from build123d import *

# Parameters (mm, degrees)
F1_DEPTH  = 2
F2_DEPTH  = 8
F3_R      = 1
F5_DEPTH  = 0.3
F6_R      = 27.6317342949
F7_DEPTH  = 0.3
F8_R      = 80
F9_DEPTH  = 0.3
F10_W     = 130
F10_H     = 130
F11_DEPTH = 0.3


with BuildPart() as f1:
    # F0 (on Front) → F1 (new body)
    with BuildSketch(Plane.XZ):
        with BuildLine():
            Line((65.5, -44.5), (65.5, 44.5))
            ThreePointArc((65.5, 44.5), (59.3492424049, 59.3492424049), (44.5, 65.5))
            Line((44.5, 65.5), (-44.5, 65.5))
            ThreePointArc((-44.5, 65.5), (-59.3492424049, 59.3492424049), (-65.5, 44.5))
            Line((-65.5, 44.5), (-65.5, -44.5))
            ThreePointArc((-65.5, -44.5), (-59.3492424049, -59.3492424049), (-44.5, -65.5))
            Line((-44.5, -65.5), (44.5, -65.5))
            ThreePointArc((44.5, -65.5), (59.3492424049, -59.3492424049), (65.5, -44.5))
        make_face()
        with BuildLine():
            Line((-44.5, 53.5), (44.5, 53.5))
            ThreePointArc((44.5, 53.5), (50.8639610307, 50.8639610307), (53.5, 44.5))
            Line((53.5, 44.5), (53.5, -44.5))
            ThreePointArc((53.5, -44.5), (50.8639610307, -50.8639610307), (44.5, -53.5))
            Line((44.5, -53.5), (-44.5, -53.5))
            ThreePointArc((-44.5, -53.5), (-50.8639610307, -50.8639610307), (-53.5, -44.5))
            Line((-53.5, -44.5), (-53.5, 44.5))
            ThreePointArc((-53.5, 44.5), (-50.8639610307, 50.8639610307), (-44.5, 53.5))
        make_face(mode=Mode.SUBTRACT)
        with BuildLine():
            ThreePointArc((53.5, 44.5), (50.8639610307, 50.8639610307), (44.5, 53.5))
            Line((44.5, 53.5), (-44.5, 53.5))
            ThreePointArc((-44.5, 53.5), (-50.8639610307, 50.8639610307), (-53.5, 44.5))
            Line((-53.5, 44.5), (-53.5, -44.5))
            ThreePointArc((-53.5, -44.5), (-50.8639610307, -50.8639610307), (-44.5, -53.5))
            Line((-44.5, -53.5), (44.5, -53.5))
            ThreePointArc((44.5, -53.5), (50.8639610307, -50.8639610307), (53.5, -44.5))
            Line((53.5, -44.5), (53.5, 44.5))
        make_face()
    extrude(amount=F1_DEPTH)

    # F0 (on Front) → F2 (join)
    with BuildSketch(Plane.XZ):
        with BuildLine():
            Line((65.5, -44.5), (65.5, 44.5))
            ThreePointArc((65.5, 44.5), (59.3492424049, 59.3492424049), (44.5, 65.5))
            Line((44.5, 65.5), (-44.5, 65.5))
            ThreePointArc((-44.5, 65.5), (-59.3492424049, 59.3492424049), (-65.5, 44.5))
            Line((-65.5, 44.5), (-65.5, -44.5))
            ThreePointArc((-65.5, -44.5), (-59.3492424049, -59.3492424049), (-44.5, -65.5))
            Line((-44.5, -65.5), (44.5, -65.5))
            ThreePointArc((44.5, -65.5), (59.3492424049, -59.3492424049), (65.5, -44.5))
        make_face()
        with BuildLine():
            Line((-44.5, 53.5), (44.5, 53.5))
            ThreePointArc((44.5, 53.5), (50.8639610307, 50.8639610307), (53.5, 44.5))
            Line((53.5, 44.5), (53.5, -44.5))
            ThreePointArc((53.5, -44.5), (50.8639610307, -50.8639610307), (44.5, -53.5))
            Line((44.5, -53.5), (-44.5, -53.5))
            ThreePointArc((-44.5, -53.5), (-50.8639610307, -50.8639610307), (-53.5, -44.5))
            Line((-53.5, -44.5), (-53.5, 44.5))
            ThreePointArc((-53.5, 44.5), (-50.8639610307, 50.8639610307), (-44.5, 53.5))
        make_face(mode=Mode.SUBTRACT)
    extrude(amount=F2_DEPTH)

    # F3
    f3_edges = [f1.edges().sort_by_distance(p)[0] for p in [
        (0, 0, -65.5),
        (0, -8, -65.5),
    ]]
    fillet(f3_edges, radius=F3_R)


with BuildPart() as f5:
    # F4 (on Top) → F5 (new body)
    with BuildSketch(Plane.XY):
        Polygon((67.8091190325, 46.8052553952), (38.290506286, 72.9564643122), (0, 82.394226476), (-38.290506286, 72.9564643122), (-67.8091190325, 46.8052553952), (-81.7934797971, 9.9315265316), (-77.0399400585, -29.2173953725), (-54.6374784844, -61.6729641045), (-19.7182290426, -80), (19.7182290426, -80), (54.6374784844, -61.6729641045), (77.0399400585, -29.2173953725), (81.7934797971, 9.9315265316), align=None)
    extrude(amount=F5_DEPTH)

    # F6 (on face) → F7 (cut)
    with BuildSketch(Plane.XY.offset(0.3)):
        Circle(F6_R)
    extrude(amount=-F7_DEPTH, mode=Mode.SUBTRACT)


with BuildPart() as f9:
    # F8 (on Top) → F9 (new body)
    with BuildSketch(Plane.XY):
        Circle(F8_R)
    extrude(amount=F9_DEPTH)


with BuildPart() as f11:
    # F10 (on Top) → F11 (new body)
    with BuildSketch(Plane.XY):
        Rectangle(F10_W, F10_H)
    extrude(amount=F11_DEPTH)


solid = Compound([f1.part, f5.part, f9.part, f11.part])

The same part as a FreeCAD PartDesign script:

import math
import FreeCAD as App
import Part
import Sketcher


def edges_at(feature, points):
    """Names of the edges that pass closest to the given points."""
    edges = feature.Shape.Edges
    near = lambda p: min(range(len(edges)), key=lambda i: edges[i].distToShape(Part.Vertex(*p))[0])
    return sorted({f"Edge{near(p) + 1}" for p in points})

doc = App.newDocument("Part")
body = doc.addObject("PartDesign::Body", "Body")

# Sketch on XZ plane
sketch1 = body.newObject("Sketcher::SketchObject", "Sketch")
sketch1.AttachmentSupport = (doc.getObject("XZ_Plane"), [""])
sketch1.MapMode = "FlatFace"
sketch1.addGeometry([
    Part.LineSegment(App.Vector(66, -44, 0), App.Vector(66, 44, 0)),  # 0
    Part.ArcOfCircle(Part.Circle(App.Vector(44, 44, 0), App.Vector(0, 0, 1), 21), math.radians(0), math.radians(90)),  # 1
    Part.LineSegment(App.Vector(44, 66, 0), App.Vector(-44, 66, 0)),  # 2
    Part.ArcOfCircle(Part.Circle(App.Vector(-44, 44, 0), App.Vector(0, 0, 1), 21), math.radians(90), math.radians(180)),  # 3
    Part.LineSegment(App.Vector(-66, 44, 0), App.Vector(-66, -44, 0)),  # 4
    Part.ArcOfCircle(Part.Circle(App.Vector(-44, -44, 0), App.Vector(0, 0, 1), 21), math.radians(180), math.radians(270)),  # 5
    Part.LineSegment(App.Vector(-44, -66, 0), App.Vector(44, -66, 0)),  # 6
    Part.ArcOfCircle(Part.Circle(App.Vector(44, -44, 0), App.Vector(0, 0, 1), 21), math.radians(-90), math.radians(0)),  # 7
], False)
sketch1.addConstraint([
    Sketcher.Constraint("Tangent", 0, 2, 1, 1),
    Sketcher.Constraint("Tangent", 1, 2, 2, 1),
    Sketcher.Constraint("Tangent", 2, 2, 3, 1),
    Sketcher.Constraint("Tangent", 3, 2, 4, 1),
    Sketcher.Constraint("Tangent", 4, 2, 5, 1),
    Sketcher.Constraint("Tangent", 5, 2, 6, 1),
    Sketcher.Constraint("Tangent", 6, 2, 7, 1),
    Sketcher.Constraint("Tangent", 7, 2, 0, 1),
    Sketcher.Constraint("Vertical", 0),
    Sketcher.Constraint("Horizontal", 2),
    Sketcher.Constraint("Vertical", 4),
    Sketcher.Constraint("Horizontal", 6),
    Sketcher.Constraint("Equal", 1, 3),
    Sketcher.Constraint("Equal", 3, 5),
    Sketcher.Constraint("Equal", 5, 7),
    Sketcher.Constraint("Symmetric", 1, 3, 5, 3, -1, 1),
    Sketcher.Constraint("Equal", 6, 0),
    Sketcher.Constraint("Radius", 1, 21.0),
    Sketcher.Constraint("DistanceX", 2, 2, 2, 1, 89.0),
])
pad1 = body.newObject("PartDesign::Pad", "Pad")
pad1.Profile = sketch1
pad1.Length = 2

# Sketch on XZ plane
sketch2 = body.newObject("Sketcher::SketchObject", "Sketch001")
sketch2.AttachmentSupport = (doc.getObject("XZ_Plane"), [""])
sketch2.MapMode = "FlatFace"
sketch2.addGeometry([
    Part.LineSegment(App.Vector(66, -44, 0), App.Vector(66, 44, 0)),  # 0
    Part.ArcOfCircle(Part.Circle(App.Vector(44, 44, 0), App.Vector(0, 0, 1), 21), math.radians(0), math.radians(90)),  # 1
    Part.LineSegment(App.Vector(44, 66, 0), App.Vector(-44, 66, 0)),  # 2
    Part.ArcOfCircle(Part.Circle(App.Vector(-44, 44, 0), App.Vector(0, 0, 1), 21), math.radians(90), math.radians(180)),  # 3
    Part.LineSegment(App.Vector(-66, 44, 0), App.Vector(-66, -44, 0)),  # 4
    Part.ArcOfCircle(Part.Circle(App.Vector(-44, -44, 0), App.Vector(0, 0, 1), 21), math.radians(180), math.radians(270)),  # 5
    Part.LineSegment(App.Vector(-44, -66, 0), App.Vector(44, -66, 0)),  # 6
    Part.ArcOfCircle(Part.Circle(App.Vector(44, -44, 0), App.Vector(0, 0, 1), 21), math.radians(-90), math.radians(0)),  # 7
    Part.ArcOfCircle(Part.Circle(App.Vector(-44, 44, 0), App.Vector(0, 0, 1), 9), math.radians(90), math.radians(180)),  # 8
    Part.LineSegment(App.Vector(-44, 54, 0), App.Vector(44, 54, 0)),  # 9
    Part.ArcOfCircle(Part.Circle(App.Vector(44, 44, 0), App.Vector(0, 0, 1), 9), math.radians(0), math.radians(90)),  # 10
    Part.LineSegment(App.Vector(54, 44, 0), App.Vector(54, -44, 0)),  # 11
    Part.ArcOfCircle(Part.Circle(App.Vector(44, -44, 0), App.Vector(0, 0, 1), 9), math.radians(-90), math.radians(0)),  # 12
    Part.LineSegment(App.Vector(44, -54, 0), App.Vector(-44, -54, 0)),  # 13
    Part.ArcOfCircle(Part.Circle(App.Vector(-44, -44, 0), App.Vector(0, 0, 1), 9), math.radians(180), math.radians(270)),  # 14
    Part.LineSegment(App.Vector(-54, -44, 0), App.Vector(-54, 44, 0)),  # 15
], False)
sketch2.addConstraint([
    Sketcher.Constraint("Tangent", 0, 2, 1, 1),
    Sketcher.Constraint("Tangent", 1, 2, 2, 1),
    Sketcher.Constraint("Tangent", 2, 2, 3, 1),
    Sketcher.Constraint("Tangent", 3, 2, 4, 1),
    Sketcher.Constraint("Tangent", 4, 2, 5, 1),
    Sketcher.Constraint("Tangent", 5, 2, 6, 1),
    Sketcher.Constraint("Tangent", 6, 2, 7, 1),
    Sketcher.Constraint("Tangent", 7, 2, 0, 1),
    Sketcher.Constraint("Tangent", 8, 1, 9, 1),
    Sketcher.Constraint("Tangent", 9, 2, 10, 2),
    Sketcher.Constraint("Tangent", 10, 1, 11, 1),
    Sketcher.Constraint("Tangent", 11, 2, 12, 2),
    Sketcher.Constraint("Tangent", 12, 1, 13, 1),
    Sketcher.Constraint("Tangent", 13, 2, 14, 2),
    Sketcher.Constraint("Tangent", 14, 1, 15, 1),
    Sketcher.Constraint("Tangent", 15, 2, 8, 2),
    Sketcher.Constraint("Vertical", 0),
    Sketcher.Constraint("Horizontal", 2),
    Sketcher.Constraint("Vertical", 4),
    Sketcher.Constraint("Horizontal", 6),
    Sketcher.Constraint("Horizontal", 9),
    Sketcher.Constraint("Vertical", 11),
    Sketcher.Constraint("Horizontal", 13),
    Sketcher.Constraint("Vertical", 15),
    Sketcher.Constraint("Coincident", 8, 3, 3, 3),
    Sketcher.Constraint("Coincident", 10, 3, 1, 3),
    Sketcher.Constraint("Coincident", 12, 3, 7, 3),
    Sketcher.Constraint("Equal", 1, 3),
    Sketcher.Constraint("Equal", 3, 5),
    Sketcher.Constraint("Equal", 5, 7),
    Sketcher.Constraint("Equal", 12, 14),
    Sketcher.Constraint("Symmetric", 1, 3, 5, 3, -1, 1),
    Sketcher.Constraint("Equal", 13, 0),
    Sketcher.Constraint("Radius", 1, 21.0),
    Sketcher.Constraint("Radius", 8, 9.0),
    Sketcher.Constraint("DistanceX", 2, 2, 2, 1, 89.0),
])
pad2 = body.newObject("PartDesign::Pad", "Pad001")
pad2.Profile = sketch2
pad2.Length = 8
doc.recompute()

fillet = body.newObject("PartDesign::Fillet", "Fillet")
fillet.Base = (pad2, edges_at(pad2, [(0, 0, -65.5), (0, -8, -65.5)]))
fillet.Radius = 1
body2 = doc.addObject("PartDesign::Body", "Body001")

# Sketch on XY plane
sketch3 = body2.newObject("Sketcher::SketchObject", "Sketch002")
sketch3.AttachmentSupport = (doc.getObject("XY_Plane001"), [""])
sketch3.MapMode = "FlatFace"
sketch3.addGeometry([
    Part.LineSegment(App.Vector(68, 47, 0), App.Vector(38, 73, 0)),  # 0
    Part.LineSegment(App.Vector(38, 73, 0), App.Vector(0, 82, 0)),  # 1
    Part.LineSegment(App.Vector(0, 82, 0), App.Vector(-38, 73, 0)),  # 2
    Part.LineSegment(App.Vector(-38, 73, 0), App.Vector(-68, 47, 0)),  # 3
    Part.LineSegment(App.Vector(-68, 47, 0), App.Vector(-82, 10, 0)),  # 4
    Part.LineSegment(App.Vector(-82, 10, 0), App.Vector(-77, -29, 0)),  # 5
    Part.LineSegment(App.Vector(-77, -29, 0), App.Vector(-55, -62, 0)),  # 6
    Part.LineSegment(App.Vector(-55, -62, 0), App.Vector(-20, -80, 0)),  # 7
    Part.LineSegment(App.Vector(-20, -80, 0), App.Vector(20, -80, 0)),  # 8
    Part.LineSegment(App.Vector(20, -80, 0), App.Vector(55, -62, 0)),  # 9
    Part.LineSegment(App.Vector(55, -62, 0), App.Vector(77, -29, 0)),  # 10
    Part.LineSegment(App.Vector(77, -29, 0), App.Vector(82, 10, 0)),  # 11
    Part.LineSegment(App.Vector(82, 10, 0), App.Vector(68, 47, 0)),  # 12
], False)
sketch3.addConstraint([
    Sketcher.Constraint("Coincident", 0, 2, 1, 1),
    Sketcher.Constraint("Coincident", 1, 2, 2, 1),
    Sketcher.Constraint("Coincident", 2, 2, 3, 1),
    Sketcher.Constraint("Coincident", 3, 2, 4, 1),
    Sketcher.Constraint("Coincident", 4, 2, 5, 1),
    Sketcher.Constraint("Coincident", 5, 2, 6, 1),
    Sketcher.Constraint("Coincident", 6, 2, 7, 1),
    Sketcher.Constraint("Coincident", 7, 2, 8, 1),
    Sketcher.Constraint("Coincident", 8, 2, 9, 1),
    Sketcher.Constraint("Coincident", 9, 2, 10, 1),
    Sketcher.Constraint("Coincident", 10, 2, 11, 1),
    Sketcher.Constraint("Coincident", 11, 2, 12, 1),
    Sketcher.Constraint("Coincident", 12, 2, 0, 1),
    Sketcher.Constraint("Horizontal", 8),
    Sketcher.Constraint("Symmetric", 0, 2, 2, 2, -2),
    Sketcher.Constraint("Symmetric", 6, 2, 9, 2, -2),
    Sketcher.Constraint("Symmetric", 5, 2, 10, 2, -2),
    Sketcher.Constraint("Symmetric", 4, 2, 11, 2, -2),
    Sketcher.Constraint("Symmetric", 3, 2, 12, 2, -2),
    Sketcher.Constraint("PointOnObject", 1, 2, -2),
    Sketcher.Constraint("Equal", 0, 1),
    Sketcher.Constraint("Equal", 3, 4),
    Sketcher.Constraint("Equal", 4, 5),
    Sketcher.Constraint("Equal", 5, 6),
    Sketcher.Constraint("Equal", 6, 7),
    Sketcher.Constraint("Equal", 7, 9),
    Sketcher.Constraint("DistanceY", 7, 2, -1, 1, 80.0),
    Sketcher.Constraint("DistanceX", 4, 2, 6, 2, 27.156001),
    Sketcher.Constraint("DistanceX", 8, 1, 8, 2, 39.436458),
    Sketcher.Constraint("DistanceY", 4, 2, 1, 2, 72.4627),
    Sketcher.Constraint("Distance", 0, 39.436458),
    Sketcher.Constraint("DistanceX", 3, 2, -1, 1, 67.809119),
    Sketcher.Constraint("DistanceX", 4, 2, -1, 1, 81.79348),
    Sketcher.Constraint("DistanceX", 5, 2, -1, 1, 77.03994),
])
pad3 = body2.newObject("PartDesign::Pad", "Pad002")
pad3.Profile = sketch3
pad3.Length = 0.3

# Sketch on XY plane
sketch4 = body2.newObject("Sketcher::SketchObject", "Sketch003")
sketch4.AttachmentSupport = (doc.getObject("XY_Plane001"), [""])
sketch4.MapMode = "FlatFace"
sketch4.AttachmentOffset = App.Placement(App.Vector(0, 0, 0.3), App.Rotation())
sketch4.addGeometry(Part.Circle(App.Vector(0, 0, 0), App.Vector(0, 0, 1), 28), False)
sketch4.addConstraint([
    Sketcher.Constraint("Coincident", 0, 3, -1, 1),
    Sketcher.Constraint("Diameter", 0, 55.263469),
])
pocket1 = body2.newObject("PartDesign::Pocket", "Pocket")
pocket1.Profile = sketch4
pocket1.Length = 0.3
body3 = doc.addObject("PartDesign::Body", "Body002")

# Sketch on XY plane
sketch5 = body3.newObject("Sketcher::SketchObject", "Sketch004")
sketch5.AttachmentSupport = (doc.getObject("XY_Plane002"), [""])
sketch5.MapMode = "FlatFace"
sketch5.addGeometry(Part.Circle(App.Vector(0, 0, 0), App.Vector(0, 0, 1), 80), False)
sketch5.addConstraint([
    Sketcher.Constraint("Coincident", 0, 3, -1, 1),
    Sketcher.Constraint("Diameter", 0, 160.0),
])
pad4 = body3.newObject("PartDesign::Pad", "Pad003")
pad4.Profile = sketch5
pad4.Length = 0.3
body4 = doc.addObject("PartDesign::Body", "Body003")

# Sketch on XY plane
sketch6 = body4.newObject("Sketcher::SketchObject", "Sketch005")
sketch6.AttachmentSupport = (doc.getObject("XY_Plane003"), [""])
sketch6.MapMode = "FlatFace"
sketch6.addGeometry([
    Part.LineSegment(App.Vector(-65, 65, 0), App.Vector(-65, -65, 0)),
    Part.LineSegment(App.Vector(-65, -65, 0), App.Vector(65, -65, 0)),
    Part.LineSegment(App.Vector(65, -65, 0), App.Vector(65, 65, 0)),
    Part.LineSegment(App.Vector(65, 65, 0), App.Vector(-65, 65, 0)),
], False)
sketch6.addConstraint([
    Sketcher.Constraint("Coincident", 0, 2, 1, 1),
    Sketcher.Constraint("Coincident", 1, 2, 2, 1),
    Sketcher.Constraint("Coincident", 2, 2, 3, 1),
    Sketcher.Constraint("Coincident", 3, 2, 0, 1),
    Sketcher.Constraint("Vertical", 0),
    Sketcher.Constraint("Horizontal", 1),
    Sketcher.Constraint("Vertical", 2),
    Sketcher.Constraint("Horizontal", 3),
    Sketcher.Constraint("Symmetric", 0, 2, 2, 2, -1, 1),
    Sketcher.Constraint("Equal", 3, 0),
    Sketcher.Constraint("DistanceX", 1, 1, 1, 2, 130.0),
])
pad5 = body4.newObject("PartDesign::Pad", "Pad004")
pad5.Profile = sketch6
pad5.Length = 0.3

doc.recompute()
